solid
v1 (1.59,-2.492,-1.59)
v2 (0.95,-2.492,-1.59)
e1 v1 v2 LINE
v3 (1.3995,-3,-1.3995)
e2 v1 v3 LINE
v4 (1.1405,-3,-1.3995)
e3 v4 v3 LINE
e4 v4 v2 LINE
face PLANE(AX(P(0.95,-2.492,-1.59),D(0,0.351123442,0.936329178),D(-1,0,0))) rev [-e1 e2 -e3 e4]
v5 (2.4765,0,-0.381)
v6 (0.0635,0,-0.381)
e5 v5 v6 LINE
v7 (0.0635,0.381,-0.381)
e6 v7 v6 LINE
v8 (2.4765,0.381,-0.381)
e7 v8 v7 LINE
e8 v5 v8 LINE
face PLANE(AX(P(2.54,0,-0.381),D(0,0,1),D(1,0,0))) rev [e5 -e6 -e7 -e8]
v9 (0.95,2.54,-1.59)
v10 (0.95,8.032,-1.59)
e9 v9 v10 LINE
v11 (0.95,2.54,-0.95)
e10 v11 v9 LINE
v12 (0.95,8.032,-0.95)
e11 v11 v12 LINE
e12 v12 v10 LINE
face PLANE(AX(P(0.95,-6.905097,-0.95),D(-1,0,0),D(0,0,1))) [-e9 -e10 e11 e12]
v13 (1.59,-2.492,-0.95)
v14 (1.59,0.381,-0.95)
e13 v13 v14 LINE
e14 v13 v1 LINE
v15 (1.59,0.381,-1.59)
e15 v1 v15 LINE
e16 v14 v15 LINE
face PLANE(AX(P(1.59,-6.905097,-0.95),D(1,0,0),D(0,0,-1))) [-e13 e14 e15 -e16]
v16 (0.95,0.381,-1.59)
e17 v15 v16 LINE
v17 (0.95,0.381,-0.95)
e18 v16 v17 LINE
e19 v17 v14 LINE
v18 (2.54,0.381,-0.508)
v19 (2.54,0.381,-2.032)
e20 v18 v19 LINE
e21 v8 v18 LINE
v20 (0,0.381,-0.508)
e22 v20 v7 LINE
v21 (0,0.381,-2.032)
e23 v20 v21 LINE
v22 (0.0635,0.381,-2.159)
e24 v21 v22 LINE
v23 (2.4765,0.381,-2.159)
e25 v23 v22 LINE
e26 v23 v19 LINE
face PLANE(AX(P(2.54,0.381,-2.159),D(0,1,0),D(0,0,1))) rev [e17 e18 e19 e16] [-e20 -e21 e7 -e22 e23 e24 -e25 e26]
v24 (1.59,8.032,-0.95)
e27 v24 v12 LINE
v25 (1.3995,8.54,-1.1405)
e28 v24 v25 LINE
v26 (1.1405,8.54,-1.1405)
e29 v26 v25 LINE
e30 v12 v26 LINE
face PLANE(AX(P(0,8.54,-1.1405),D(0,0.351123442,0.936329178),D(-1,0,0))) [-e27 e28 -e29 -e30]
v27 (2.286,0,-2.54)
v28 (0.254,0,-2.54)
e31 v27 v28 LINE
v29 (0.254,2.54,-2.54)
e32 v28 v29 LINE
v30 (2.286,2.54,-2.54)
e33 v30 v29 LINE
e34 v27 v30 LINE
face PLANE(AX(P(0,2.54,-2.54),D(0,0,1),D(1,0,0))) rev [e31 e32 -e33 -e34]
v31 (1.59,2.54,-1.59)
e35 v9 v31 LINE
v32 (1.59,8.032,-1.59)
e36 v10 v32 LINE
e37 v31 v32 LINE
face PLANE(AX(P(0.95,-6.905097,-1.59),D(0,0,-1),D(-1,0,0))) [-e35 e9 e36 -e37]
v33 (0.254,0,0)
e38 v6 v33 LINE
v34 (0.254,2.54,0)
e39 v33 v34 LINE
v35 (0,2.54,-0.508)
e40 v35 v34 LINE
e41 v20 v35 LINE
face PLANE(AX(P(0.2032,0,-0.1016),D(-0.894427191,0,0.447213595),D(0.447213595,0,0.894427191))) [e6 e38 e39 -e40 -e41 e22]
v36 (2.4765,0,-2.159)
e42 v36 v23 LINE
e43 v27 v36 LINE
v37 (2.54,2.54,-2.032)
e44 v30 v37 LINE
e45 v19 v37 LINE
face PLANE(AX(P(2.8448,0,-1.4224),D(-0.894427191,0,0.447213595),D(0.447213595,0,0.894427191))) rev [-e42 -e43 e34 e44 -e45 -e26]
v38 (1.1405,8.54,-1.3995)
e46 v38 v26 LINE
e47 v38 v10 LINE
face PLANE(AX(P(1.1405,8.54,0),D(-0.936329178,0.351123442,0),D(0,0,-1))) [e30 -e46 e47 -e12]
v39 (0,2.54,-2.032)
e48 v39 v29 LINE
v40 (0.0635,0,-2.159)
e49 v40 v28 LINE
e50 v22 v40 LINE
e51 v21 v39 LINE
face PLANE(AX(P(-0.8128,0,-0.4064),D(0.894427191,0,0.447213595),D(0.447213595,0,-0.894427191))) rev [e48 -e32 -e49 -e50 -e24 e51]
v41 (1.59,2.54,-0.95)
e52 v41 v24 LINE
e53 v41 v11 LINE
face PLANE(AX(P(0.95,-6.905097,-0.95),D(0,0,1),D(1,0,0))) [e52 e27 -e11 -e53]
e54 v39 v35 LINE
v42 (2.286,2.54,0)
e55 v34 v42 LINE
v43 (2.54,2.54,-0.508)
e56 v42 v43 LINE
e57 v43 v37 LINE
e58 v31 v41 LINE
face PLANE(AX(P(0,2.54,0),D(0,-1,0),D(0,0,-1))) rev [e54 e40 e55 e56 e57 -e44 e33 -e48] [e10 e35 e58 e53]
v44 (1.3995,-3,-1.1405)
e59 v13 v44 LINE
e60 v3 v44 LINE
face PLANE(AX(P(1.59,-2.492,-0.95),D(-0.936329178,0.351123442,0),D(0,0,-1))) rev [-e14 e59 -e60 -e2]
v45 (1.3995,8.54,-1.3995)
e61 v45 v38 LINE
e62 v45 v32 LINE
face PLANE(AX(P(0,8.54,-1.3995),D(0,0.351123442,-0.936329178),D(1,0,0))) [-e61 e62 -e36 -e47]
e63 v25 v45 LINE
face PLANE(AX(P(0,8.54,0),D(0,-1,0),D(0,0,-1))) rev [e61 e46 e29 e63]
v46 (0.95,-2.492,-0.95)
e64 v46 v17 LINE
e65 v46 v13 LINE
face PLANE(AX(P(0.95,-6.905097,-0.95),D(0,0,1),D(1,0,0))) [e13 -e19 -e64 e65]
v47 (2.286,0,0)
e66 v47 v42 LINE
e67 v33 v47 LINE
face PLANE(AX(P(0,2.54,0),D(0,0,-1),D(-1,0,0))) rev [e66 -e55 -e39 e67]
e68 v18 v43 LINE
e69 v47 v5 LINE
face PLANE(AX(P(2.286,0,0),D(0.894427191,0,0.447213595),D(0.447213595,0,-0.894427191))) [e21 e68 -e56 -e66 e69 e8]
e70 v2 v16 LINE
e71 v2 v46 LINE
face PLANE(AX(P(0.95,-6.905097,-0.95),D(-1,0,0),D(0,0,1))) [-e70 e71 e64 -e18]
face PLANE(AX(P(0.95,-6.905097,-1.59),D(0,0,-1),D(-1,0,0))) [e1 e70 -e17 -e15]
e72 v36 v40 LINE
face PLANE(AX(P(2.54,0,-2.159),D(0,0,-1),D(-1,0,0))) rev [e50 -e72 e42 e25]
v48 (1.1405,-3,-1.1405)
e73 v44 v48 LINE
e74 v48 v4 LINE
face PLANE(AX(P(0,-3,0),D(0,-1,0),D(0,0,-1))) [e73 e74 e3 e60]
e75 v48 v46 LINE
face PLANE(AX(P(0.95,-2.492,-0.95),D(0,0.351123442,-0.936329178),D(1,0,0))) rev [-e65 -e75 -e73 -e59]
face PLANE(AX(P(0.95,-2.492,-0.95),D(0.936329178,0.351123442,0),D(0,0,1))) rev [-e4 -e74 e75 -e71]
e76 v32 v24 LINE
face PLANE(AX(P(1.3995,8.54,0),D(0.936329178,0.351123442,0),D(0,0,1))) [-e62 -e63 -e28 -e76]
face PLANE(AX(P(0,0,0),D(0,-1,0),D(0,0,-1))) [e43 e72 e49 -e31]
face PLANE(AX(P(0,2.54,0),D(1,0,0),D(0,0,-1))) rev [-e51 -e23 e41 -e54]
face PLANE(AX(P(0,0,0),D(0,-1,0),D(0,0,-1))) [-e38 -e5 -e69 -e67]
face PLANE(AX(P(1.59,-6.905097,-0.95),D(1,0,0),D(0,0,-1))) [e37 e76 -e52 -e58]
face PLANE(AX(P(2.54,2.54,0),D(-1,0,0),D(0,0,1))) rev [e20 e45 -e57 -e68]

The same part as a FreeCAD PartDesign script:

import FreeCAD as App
import Part
import Sketcher

V = App.Vector
Q = App.Units.Quantity


def edges_at(feature, points):
    """Names of the edges that pass closest to the given points."""
    edges = feature.Shape.Edges
    near = lambda p: min(range(len(edges)), key=lambda i: edges[i].distToShape(Part.Vertex(*p))[0])
    return sorted({f"Edge{near(p) + 1}" for p in points})


def add_polygon(sketch, points):
    """Adds a closed chain of lines whose ends are joined by coincident constraints."""
    first, n = sketch.GeometryCount, len(points)
    for a, b in zip(points, points[1:] + points[:1]):
        sketch.addGeometry(Part.LineSegment(App.Vector(*a, 0), App.Vector(*b, 0)), False)
    for i in range(n):
        sketch.addConstraint(Sketcher.Constraint("Coincident", first + i, 2, first + (i + 1) % n, 1))

doc = App.newDocument("Part")
body = doc.addObject("PartDesign::Body", "Body")

sketch1 = body.newObject("Sketcher::SketchObject", "Sketch")
sketch1.AttachmentSupport = (doc.getObject("XZ_Plane"), [""])
sketch1.MapMode = "FlatFace"
add_polygon(sketch1, [(0, -2.5), (0, 0), (2.5, 0), (2.5, -2.5)])
sketch1.addConstraint(Sketcher.Constraint("Vertical", 0))
sketch1.addConstraint(Sketcher.Constraint("Horizontal", 1))
sketch1.addConstraint(Sketcher.Constraint("Vertical", 2))
sketch1.addConstraint(Sketcher.Constraint("Horizontal", 3))
sketch1.addConstraint(Sketcher.Constraint("Coincident", 0, 2, -1, 1))
sketch1.addConstraint(Sketcher.Constraint("Equal", 3, 0))
sketch1.addConstraint(Sketcher.Constraint("DistanceX", 1, 1, 1, 2, Q("0.1 in")))
pad1 = body.newObject("PartDesign::Pad", "Pad")
pad1.Profile = sketch1
pad1.Length = Q("0.1 in")
pad1.Reversed = True

sketch2 = body.newObject("Sketcher::SketchObject", "Sketch001")
sketch2.AttachmentSupport = (doc.getObject("YZ_Plane"), [""])
sketch2.MapMode = "FlatFace"
add_polygon(sketch2, [(0.38, -2.16), (0, -2.16), (0, -0.38), (0.38, -0.38)])
sketch2.addConstraint(Sketcher.Constraint("Horizontal", 0))
sketch2.addConstraint(Sketcher.Constraint("Vertical", 1))
sketch2.addConstraint(Sketcher.Constraint("Horizontal", 2))
sketch2.addConstraint(Sketcher.Constraint("Vertical", 3))
sketch2.addConstraint(Sketcher.Constraint("PointOnObject", 0, 2, -2))
sketch2.addConstraint(Sketcher.Constraint("DistanceY", 1, 1, 1, 2, Q("0.07 in")))
sketch2.addConstraint(Sketcher.Constraint("DistanceX", 0, 2, 0, 1, Q("0.015 in")))
sketch2.addConstraint(Sketcher.Constraint("DistanceY", 0, 2, -1, 1, Q("0.085 in")))
pocket1 = body.newObject("PartDesign::Pocket", "Pocket")
pocket1.Profile = sketch2
pocket1.Type = "ThroughAll"
pocket1.Reversed = True

sketch3 = body.newObject("Sketcher::SketchObject", "Sketch002")
sketch3.AttachmentSupport = (doc.getObject("XZ_Plane"), [""])
sketch3.MapMode = "FlatFace"
sketch3.AttachmentOffset = App.Placement(V(0, 0, -0.1 * 25.4), App.Rotation())
add_polygon(sketch3, [(0.25, -2.54), (0, -2.54), (0, -2.03)])
add_polygon(sketch3, [(2.54, -2.54), (2.29, -2.54), (2.54, -2.03)])
add_polygon(sketch3, [(0.25, 0), (0, -0.51), (0, 0)])
add_polygon(sketch3, [(2.29, 0), (2.54, 0), (2.54, -0.51)])
sketch3.addConstraint(Sketcher.Constraint("Horizontal", 0))
sketch3.addConstraint(Sketcher.Constraint("Vertical", 1))
sketch3.addConstraint(Sketcher.Constraint("Horizontal", 3))
sketch3.addConstraint(Sketcher.Constraint("Vertical", 5))
sketch3.addConstraint(Sketcher.Constraint("Vertical", 7))
sketch3.addConstraint(Sketcher.Constraint("Horizontal", 8))
sketch3.addConstraint(Sketcher.Constraint("Horizontal", 9))
sketch3.addConstraint(Sketcher.Constraint("Vertical", 10))
sketch3.addConstraint(Sketcher.Constraint("Coincident", 7, 2, -1, 1))
sketch3.addConstraint(Sketcher.Constraint("PointOnObject", 0, 2, -2))
sketch3.addConstraint(Sketcher.Constraint("PointOnObject", 9, 2, -1))
sketch3.addConstraint(Sketcher.Constraint("Parallel", 4, 6))
sketch3.addConstraint(Sketcher.Constraint("Parallel", 2, 11))
sketch3.addConstraint(Sketcher.Constraint("Horizontal", 2, 2, 3, 2))
sketch3.addConstraint(Sketcher.Constraint("Horizontal", 1, 2, 4, 2))
sketch3.addConstraint(Sketcher.Constraint("Horizontal", 6, 2, 10, 2))
sketch3.addConstraint(Sketcher.Constraint("Vertical", 2, 2, 8, 2))
sketch3.addConstraint(Sketcher.Constraint("Vertical", 5, 2, 9, 2))
sketch3.addConstraint(Sketcher.Constraint("Vertical", 3, 2, 11, 2))
sketch3.addConstraint(Sketcher.Constraint("DistanceX", 0, 2, 0, 1, Q("0.01 in")))
sketch3.addConstraint(Sketcher.Constraint("DistanceY", 1, 1, 1, 2, Q("0.02 in")))
sketch3.addConstraint(Sketcher.Constraint("DistanceY", 0, 2, -1, 1, Q("0.1 in")))
sketch3.addConstraint(Sketcher.Constraint("DistanceX", -1, 1, 4, 2, Q("0.1 in")))
pocket2 = body.newObject("PartDesign::Pocket", "Pocket001")
pocket2.Profile = sketch3
pocket2.Type = "ThroughAll"
pocket2.Reversed = True

sketch4 = body.newObject("Sketcher::SketchObject", "Sketch003")
sketch4.AttachmentSupport = (doc.getObject("XZ_Plane"), [""])
sketch4.MapMode = "FlatFace"
sketch4.AttachmentOffset = App.Placement(V(0, 0, -0.1 * 25.4), App.Rotation())
add_polygon(sketch4, [(0.9, -1.6), (0.9, -0.9), (1.6, -0.9), (1.6, -1.6)])
sketch4.addConstraint(Sketcher.Constraint("Vertical", 0))
sketch4.addConstraint(Sketcher.Constraint("Horizontal", 1))
sketch4.addConstraint(Sketcher.Constraint("Vertical", 2))
sketch4.addConstraint(Sketcher.Constraint("Horizontal", 3))
sketch4.addConstraint(Sketcher.Constraint("Equal", 3, 0))
sketch4.addConstraint(Sketcher.Constraint("DistanceX", 1, 1, 1, 2, Q("0.64 mm")))
sketch4.addConstraint(Sketcher.Constraint("DistanceX", -1, 1, 0, 2, Q("0.95 mm")))
sketch4.addConstraint(Sketcher.Constraint("DistanceY", 0, 2, -1, 1, Q("0.95 mm")))
pad2 = body.newObject("PartDesign::Pad", "Pad001")
pad2.Profile = sketch4
pad2.Type = "TwoLengths"
pad2.Length = 6
pad2.Length2 = 5.54
pad2.Reversed = True
doc.recompute()

chamfer = body.newObject("PartDesign::Chamfer", "Chamfer")
chamfer.Base = (pad2, edges_at(pad2, [(0.95, 8.54, -1.27)]))
chamfer.ChamferType = "Two distances"
chamfer.Size = Q("0.02 in")
chamfer.Size2 = Q("0.0075 in")
doc.recompute()

chamfer2 = body.newObject("PartDesign::Chamfer", "Chamfer001")
chamfer2.Base = (chamfer, edges_at(chamfer, [(1.365, 8.54, -0.95)]))
chamfer2.ChamferType = "Two distances"
chamfer2.Size = Q("0.02 in")
chamfer2.Size2 = Q("0.0075 in")
doc.recompute()

chamfer3 = body.newObject("PartDesign::Chamfer", "Chamfer002")
chamfer3.Base = (chamfer2, edges_at(chamfer2, [(1.59, 8.54, -1.365)]))
chamfer3.ChamferType = "Two distances"
chamfer3.Size = Q("0.02 in")
chamfer3.Size2 = Q("0.0075 in")
doc.recompute()

chamfer4 = body.newObject("PartDesign::Chamfer", "Chamfer003")
chamfer4.Base = (chamfer3, edges_at(chamfer3, [(1.27, 8.54, -1.59)]))
chamfer4.ChamferType = "Two distances"
chamfer4.Size = Q("0.02 in")
chamfer4.Size2 = Q("0.0075 in")
doc.recompute()

chamfer5 = body.newObject("PartDesign::Chamfer", "Chamfer004")
chamfer5.Base = (chamfer4, edges_at(chamfer4, [
    (1.27, -3, -1.59),
    (0.95, -3, -1.27),
    (1.27, -3, -0.95),
    (1.59, -3, -1.27),
]))
chamfer5.ChamferType = "Two distances"
chamfer5.Size = Q("0.0075 in")
chamfer5.Size2 = Q("0.02 in")
chamfer5.FlipDirection = True

doc.recompute()
